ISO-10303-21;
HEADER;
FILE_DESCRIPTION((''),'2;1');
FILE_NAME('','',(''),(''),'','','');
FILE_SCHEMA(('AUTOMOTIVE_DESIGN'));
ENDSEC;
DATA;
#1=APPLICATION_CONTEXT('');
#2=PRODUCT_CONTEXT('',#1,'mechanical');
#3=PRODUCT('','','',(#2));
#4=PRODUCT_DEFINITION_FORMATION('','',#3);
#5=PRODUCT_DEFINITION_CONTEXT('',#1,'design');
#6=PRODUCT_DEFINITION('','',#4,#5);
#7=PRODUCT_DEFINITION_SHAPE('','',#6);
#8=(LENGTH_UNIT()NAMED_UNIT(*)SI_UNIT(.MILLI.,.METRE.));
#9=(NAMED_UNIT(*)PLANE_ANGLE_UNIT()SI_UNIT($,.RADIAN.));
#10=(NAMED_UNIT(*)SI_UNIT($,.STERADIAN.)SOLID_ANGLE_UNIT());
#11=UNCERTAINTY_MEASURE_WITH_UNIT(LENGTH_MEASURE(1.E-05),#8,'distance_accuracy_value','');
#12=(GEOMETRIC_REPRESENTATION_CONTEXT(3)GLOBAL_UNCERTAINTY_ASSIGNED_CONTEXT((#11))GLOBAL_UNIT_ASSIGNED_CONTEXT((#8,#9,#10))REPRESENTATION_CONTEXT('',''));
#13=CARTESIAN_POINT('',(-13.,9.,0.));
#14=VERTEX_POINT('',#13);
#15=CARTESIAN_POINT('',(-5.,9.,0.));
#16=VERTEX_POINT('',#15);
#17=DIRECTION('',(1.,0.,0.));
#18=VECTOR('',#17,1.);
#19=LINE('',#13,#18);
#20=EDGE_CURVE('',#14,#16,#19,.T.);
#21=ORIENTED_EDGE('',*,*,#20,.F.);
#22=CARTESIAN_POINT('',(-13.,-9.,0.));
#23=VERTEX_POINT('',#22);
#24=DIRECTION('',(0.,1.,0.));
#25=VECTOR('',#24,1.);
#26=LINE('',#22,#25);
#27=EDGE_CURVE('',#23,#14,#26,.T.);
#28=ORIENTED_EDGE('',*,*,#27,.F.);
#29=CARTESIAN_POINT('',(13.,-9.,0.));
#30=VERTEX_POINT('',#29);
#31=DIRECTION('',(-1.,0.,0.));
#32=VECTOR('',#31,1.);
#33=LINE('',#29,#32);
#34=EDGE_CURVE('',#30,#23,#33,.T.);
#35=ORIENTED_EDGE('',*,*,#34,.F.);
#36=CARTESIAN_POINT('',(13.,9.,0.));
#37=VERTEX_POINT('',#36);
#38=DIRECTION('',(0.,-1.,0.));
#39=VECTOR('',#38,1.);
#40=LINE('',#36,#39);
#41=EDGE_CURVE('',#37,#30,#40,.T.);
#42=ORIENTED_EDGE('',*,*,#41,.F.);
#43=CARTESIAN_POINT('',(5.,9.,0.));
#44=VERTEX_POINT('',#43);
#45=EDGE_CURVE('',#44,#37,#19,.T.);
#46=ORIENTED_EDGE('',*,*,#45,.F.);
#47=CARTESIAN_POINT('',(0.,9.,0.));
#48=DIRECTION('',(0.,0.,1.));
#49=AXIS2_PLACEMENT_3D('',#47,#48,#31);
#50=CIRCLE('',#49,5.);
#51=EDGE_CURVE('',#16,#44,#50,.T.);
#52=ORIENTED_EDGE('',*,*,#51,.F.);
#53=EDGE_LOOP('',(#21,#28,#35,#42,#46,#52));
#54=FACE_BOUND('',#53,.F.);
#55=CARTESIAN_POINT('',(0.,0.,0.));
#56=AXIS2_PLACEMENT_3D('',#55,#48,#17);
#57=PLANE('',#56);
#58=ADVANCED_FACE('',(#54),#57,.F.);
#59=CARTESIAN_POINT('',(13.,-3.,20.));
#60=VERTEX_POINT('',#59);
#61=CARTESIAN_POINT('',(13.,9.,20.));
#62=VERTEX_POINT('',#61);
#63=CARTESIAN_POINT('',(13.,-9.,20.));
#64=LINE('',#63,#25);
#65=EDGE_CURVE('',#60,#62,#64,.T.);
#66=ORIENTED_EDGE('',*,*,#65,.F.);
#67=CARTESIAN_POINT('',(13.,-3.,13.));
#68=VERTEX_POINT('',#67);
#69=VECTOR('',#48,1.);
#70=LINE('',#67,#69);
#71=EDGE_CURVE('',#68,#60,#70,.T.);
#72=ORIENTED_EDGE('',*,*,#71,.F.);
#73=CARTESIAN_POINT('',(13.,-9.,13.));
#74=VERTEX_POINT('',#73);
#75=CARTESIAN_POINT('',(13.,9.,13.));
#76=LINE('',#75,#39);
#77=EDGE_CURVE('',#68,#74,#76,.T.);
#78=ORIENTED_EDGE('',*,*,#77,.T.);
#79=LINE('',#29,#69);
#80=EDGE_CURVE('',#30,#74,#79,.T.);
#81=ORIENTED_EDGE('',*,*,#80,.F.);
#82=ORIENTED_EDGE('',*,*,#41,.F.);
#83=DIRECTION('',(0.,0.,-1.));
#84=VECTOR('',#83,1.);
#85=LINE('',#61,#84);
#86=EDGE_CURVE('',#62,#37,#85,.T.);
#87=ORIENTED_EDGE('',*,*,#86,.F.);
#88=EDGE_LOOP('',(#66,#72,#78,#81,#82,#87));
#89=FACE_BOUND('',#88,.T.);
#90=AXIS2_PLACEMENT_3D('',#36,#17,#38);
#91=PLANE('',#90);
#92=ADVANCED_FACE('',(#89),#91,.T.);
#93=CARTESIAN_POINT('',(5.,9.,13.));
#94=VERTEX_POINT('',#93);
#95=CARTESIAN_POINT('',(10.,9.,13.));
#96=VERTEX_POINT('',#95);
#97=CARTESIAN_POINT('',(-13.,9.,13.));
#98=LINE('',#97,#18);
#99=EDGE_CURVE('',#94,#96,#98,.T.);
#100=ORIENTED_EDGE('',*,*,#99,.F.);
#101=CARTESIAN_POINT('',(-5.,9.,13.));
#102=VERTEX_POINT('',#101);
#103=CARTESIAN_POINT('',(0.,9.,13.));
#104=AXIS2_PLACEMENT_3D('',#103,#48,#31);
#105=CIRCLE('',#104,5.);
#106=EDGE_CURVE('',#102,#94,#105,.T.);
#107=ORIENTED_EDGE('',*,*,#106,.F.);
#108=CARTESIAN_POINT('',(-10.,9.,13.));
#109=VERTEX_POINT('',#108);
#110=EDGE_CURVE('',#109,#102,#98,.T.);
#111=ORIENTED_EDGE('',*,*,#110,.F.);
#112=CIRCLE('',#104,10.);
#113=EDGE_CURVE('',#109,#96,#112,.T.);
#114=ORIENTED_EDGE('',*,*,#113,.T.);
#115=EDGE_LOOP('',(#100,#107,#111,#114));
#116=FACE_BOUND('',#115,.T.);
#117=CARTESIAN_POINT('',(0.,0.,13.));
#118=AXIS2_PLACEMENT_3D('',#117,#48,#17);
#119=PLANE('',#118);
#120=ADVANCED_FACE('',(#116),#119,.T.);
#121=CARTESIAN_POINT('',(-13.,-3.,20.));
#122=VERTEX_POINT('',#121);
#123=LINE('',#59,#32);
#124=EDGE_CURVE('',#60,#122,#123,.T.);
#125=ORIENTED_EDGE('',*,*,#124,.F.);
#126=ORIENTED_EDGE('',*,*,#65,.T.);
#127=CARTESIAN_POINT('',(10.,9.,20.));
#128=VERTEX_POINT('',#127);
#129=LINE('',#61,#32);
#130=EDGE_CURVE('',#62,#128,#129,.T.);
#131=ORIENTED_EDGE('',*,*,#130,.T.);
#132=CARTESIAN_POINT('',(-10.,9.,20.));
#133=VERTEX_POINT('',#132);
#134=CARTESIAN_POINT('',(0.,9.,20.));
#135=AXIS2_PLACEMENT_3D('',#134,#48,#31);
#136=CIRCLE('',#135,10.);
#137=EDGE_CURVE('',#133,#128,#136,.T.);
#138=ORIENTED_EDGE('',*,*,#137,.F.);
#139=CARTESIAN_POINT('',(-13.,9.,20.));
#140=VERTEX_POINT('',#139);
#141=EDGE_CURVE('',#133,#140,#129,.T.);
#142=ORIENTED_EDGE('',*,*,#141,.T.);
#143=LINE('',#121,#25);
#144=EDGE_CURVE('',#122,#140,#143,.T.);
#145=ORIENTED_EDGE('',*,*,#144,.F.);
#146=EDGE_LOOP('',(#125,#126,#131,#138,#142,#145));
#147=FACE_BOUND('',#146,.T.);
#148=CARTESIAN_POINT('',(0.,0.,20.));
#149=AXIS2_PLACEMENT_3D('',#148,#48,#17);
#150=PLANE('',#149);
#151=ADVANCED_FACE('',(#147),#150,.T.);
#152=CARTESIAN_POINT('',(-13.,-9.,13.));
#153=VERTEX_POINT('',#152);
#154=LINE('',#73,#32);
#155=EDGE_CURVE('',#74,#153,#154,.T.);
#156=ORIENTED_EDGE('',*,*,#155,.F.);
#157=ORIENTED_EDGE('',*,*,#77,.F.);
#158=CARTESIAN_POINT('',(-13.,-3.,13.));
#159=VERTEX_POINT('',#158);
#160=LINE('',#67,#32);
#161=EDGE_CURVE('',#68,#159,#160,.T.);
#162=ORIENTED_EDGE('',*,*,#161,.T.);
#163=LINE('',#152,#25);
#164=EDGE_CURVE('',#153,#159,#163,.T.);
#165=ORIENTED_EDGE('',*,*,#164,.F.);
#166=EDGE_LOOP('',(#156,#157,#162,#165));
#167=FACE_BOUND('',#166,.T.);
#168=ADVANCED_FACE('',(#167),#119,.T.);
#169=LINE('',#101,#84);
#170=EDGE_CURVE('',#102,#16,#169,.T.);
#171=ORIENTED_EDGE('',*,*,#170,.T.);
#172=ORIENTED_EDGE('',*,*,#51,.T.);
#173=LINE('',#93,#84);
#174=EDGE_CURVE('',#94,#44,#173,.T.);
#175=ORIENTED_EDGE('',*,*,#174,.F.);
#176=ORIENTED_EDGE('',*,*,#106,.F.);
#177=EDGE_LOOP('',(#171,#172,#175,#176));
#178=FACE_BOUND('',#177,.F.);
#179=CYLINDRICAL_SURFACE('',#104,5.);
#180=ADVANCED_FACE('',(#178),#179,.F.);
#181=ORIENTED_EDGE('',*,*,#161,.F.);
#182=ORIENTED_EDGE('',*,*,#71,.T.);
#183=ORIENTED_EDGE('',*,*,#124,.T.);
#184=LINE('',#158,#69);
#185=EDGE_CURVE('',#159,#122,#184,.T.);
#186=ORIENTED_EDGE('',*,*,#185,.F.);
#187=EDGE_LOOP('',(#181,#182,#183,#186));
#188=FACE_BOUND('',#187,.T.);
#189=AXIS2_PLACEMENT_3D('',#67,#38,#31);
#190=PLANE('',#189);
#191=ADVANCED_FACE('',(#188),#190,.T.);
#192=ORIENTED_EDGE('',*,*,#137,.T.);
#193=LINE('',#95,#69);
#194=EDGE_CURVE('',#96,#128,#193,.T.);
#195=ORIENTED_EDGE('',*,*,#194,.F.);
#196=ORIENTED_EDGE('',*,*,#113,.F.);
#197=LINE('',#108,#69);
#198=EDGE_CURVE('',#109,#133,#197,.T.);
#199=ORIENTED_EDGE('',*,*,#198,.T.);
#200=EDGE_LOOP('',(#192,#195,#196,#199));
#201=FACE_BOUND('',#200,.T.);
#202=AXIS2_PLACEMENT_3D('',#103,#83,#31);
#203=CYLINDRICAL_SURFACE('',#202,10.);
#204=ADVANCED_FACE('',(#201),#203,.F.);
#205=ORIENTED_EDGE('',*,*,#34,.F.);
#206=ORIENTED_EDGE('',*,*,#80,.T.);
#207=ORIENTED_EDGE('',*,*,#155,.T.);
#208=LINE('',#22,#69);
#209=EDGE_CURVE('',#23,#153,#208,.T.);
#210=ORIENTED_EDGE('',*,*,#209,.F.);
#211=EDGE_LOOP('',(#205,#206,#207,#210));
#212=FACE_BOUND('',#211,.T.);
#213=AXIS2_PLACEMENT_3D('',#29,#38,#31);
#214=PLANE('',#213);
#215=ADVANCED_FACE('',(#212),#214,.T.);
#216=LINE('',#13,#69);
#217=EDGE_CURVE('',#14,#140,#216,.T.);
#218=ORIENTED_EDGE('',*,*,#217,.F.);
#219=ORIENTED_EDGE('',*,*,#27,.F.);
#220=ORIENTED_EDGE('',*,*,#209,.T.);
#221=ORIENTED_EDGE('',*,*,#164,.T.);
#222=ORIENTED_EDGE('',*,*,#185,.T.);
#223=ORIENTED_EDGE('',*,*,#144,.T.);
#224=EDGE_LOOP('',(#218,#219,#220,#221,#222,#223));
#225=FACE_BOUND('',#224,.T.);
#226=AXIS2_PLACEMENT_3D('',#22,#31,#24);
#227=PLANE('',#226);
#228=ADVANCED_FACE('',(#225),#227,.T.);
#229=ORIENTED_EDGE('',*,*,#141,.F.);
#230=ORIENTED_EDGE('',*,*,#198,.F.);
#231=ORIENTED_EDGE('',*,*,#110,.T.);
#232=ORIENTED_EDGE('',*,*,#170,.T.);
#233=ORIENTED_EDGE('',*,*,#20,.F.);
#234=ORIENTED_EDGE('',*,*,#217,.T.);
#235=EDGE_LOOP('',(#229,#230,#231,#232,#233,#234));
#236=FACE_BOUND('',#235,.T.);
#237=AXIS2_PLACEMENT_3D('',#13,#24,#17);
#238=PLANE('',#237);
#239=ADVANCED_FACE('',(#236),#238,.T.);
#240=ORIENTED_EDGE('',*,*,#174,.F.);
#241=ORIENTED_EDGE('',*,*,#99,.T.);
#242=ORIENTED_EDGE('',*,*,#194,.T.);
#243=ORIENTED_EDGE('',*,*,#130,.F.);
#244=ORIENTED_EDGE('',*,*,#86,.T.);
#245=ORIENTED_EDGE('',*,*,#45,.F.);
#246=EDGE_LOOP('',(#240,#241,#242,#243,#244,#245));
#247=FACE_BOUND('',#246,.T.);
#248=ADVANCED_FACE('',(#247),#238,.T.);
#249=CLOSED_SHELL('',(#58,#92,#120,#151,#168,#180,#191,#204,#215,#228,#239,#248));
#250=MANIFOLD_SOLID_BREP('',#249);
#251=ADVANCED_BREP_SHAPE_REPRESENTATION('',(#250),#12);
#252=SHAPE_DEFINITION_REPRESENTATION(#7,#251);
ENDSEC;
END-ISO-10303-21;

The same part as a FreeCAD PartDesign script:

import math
import FreeCAD as App
import Part
import Sketcher

V = App.Vector
Q = App.Units.Quantity


def add_polygon(sketch, points):
    """Adds a closed chain of lines whose ends are joined by coincident constraints."""
    first, n = sketch.GeometryCount, len(points)
    for a, b in zip(points, points[1:] + points[:1]):
        sketch.addGeometry(Part.LineSegment(App.Vector(*a, 0), App.Vector(*b, 0)), False)
    for i in range(n):
        sketch.addConstraint(Sketcher.Constraint("Coincident", first + i, 2, first + (i + 1) % n, 1))

doc = App.newDocument("Part")
body = doc.addObject("PartDesign::Body", "Body")

# Sketch on XY plane
sketch1 = body.newObject("Sketcher::SketchObject", "Sketch")
sketch1.AttachmentSupport = (doc.getObject("XY_Plane"), [""])
sketch1.MapMode = "FlatFace"
add_polygon(sketch1, [(13, 9), (-13, 9), (-13, -9), (13, -9)])  # lines 0-3
sketch1.addConstraint([
    Sketcher.Constraint("Horizontal", 0),
    Sketcher.Constraint("Vertical", 1),
    Sketcher.Constraint("Horizontal", 2),
    Sketcher.Constraint("Vertical", 3),
    Sketcher.Constraint("Symmetric", 0, 2, 2, 2, -1, 1),
    Sketcher.Constraint("DistanceX", 0, 2, 0, 1, Q("26 mm")),
    Sketcher.Constraint("DistanceY", 1, 2, 1, 1, Q("18 mm")),
])
pad1 = body.newObject("PartDesign::Pad", "Pad")
pad1.Profile = sketch1
pad1.Length = 13

# Sketch on XY plane
sketch2 = body.newObject("Sketcher::SketchObject", "Sketch001")
sketch2.AttachmentSupport = (doc.getObject("XY_Plane"), [""])
sketch2.MapMode = "FlatFace"
sketch2.AttachmentOffset = App.Placement(V(0, 0, 13), App.Rotation())
sketch2.addGeometry([
    Part.LineSegment(V(13, -3, 0), V(13, 9, 0)),  # 0
    Part.LineSegment(V(13, 9, 0), V(10, 9, 0)),  # 1
    Part.ArcOfCircle(Part.Circle(V(0, 9, 0), V(0, 0, 1), 10), math.radians(180), math.radians(360)),  # 2
    Part.LineSegment(V(-10, 9, 0), V(-13, 9, 0)),  # 3
    Part.LineSegment(V(-13, 9, 0), V(-13, -3, 0)),  # 4
    Part.LineSegment(V(-13, -3, 0), V(13, -3, 0)),  # 5
], False)
sketch2.addConstraint([
    Sketcher.Constraint("Coincident", 0, 2, 1, 1),
    Sketcher.Constraint("Coincident", 1, 2, 2, 2),
    Sketcher.Constraint("Coincident", 2, 1, 3, 1),
    Sketcher.Constraint("Coincident", 3, 2, 4, 1),
    Sketcher.Constraint("Coincident", 4, 2, 5, 1),
    Sketcher.Constraint("Coincident", 5, 2, 0, 1),
    Sketcher.Constraint("Vertical", 0),
    Sketcher.Constraint("Horizontal", 1),
    Sketcher.Constraint("Horizontal", 3),
    Sketcher.Constraint("Vertical", 4),
    Sketcher.Constraint("Horizontal", 5),
    Sketcher.Constraint("Symmetric", 1, 2, 2, 1, -2),
    Sketcher.Constraint("Horizontal", 2, 3, 0, 2),
    Sketcher.Constraint("Equal", 1, 3),
    Sketcher.Constraint("Radius", 2, Q("10 mm")),
    Sketcher.Constraint("DistanceY", 0, 1, 0, 2, Q("12 mm")),
    Sketcher.Constraint("DistanceX", 1, 2, 1, 1, Q("3 mm")),
    Sketcher.Constraint("DistanceY", -1, 1, 2, 3, Q("9 mm")),
])
pad2 = body.newObject("PartDesign::Pad", "Pad001")
pad2.Profile = sketch2
pad2.Length = 7

# Sketch on XY plane
sketch3 = body.newObject("Sketcher::SketchObject", "Sketch002")
sketch3.AttachmentSupport = (doc.getObject("XY_Plane"), [""])
sketch3.MapMode = "FlatFace"
sketch3.AttachmentOffset = App.Placement(V(0, 0, 13), App.Rotation())
sketch3.addGeometry([
    Part.ArcOfCircle(Part.Circle(V(0, 9, 0), V(0, 0, 1), 5), math.radians(180), math.radians(360)),
    Part.LineSegment(V(5, 9, 0), V(-5, 9, 0)),
], False)
sketch3.addConstraint([
    Sketcher.Constraint("Coincident", 0, 1, 1, 2),
    Sketcher.Constraint("Coincident", 1, 1, 0, 2),
    Sketcher.Constraint("Horizontal", 1),
    Sketcher.Constraint("PointOnObject", 0, 3, -2),
    Sketcher.Constraint("Radius", 0, Q("5 mm")),
    Sketcher.Constraint("DistanceY", -1, 1, 0, 3, Q("9 mm")),
    Sketcher.Constraint("DistanceY", -1, 1, 0, 1, Q("9 mm")),
])
pocket1 = body.newObject("PartDesign::Pocket", "Pocket")
pocket1.Profile = sketch3
pocket1.Length = 13

doc.recompute()
